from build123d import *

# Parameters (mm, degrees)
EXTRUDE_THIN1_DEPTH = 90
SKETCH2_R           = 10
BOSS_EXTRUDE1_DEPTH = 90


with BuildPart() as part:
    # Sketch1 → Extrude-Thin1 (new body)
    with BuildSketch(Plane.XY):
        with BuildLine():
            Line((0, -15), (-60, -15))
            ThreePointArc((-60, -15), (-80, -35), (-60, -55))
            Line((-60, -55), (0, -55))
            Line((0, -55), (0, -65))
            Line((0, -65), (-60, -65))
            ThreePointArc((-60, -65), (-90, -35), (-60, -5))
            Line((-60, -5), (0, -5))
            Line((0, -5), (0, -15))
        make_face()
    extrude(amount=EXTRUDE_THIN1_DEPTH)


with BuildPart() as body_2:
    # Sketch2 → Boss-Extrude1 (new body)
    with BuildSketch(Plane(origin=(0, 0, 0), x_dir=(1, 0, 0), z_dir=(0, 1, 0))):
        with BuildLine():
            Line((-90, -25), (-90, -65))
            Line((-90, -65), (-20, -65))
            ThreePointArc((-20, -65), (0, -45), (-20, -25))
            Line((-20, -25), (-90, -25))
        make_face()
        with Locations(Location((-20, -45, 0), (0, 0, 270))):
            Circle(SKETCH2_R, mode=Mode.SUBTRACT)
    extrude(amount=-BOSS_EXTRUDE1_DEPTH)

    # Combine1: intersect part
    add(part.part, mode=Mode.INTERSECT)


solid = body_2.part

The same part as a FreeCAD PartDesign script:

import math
import FreeCAD as App
import Part
import Sketcher
Q = App.Units.Quantity

doc = App.newDocument("Part")
params = doc.addObject("Spreadsheet::Sheet", "Params")
for row, (alias, value) in enumerate([
    ("sketch1_radius", "30 mm"),
    ("sketch1_radius2", "20 mm"),
    ("sketch1_width", "60 mm"),
    ("pad1_length", "90 mm"),
    ("sketch2_diameter", "20 mm"),
    ("sketch2_radius", "20 mm"),
    ("sketch2_width", "70 mm"),
    ("pad2_length", "90 mm"),
], start=1):
    params.set(f"A{row}", alias)
    params.set(f"B{row}", "=" + value)
    params.setAlias(f"B{row}", alias)

body = doc.addObject("PartDesign::Body", "Body")

sketch1 = doc.addObject("Sketcher::SketchObject", "Sketch")
body.addObject(sketch1)
sketch1.AttachmentSupport = (doc.XY_Plane, [""])
sketch1.MapMode = "FlatFace"
sketch1.addGeometry([
    Part.LineSegment(App.Vector(-60, -15, 0), App.Vector(0, -15, 0)),
    Part.LineSegment(App.Vector(0, -15, 0), App.Vector(0, -5, 0)),
    Part.LineSegment(App.Vector(0, -5, 0), App.Vector(-60, -5, 0)),
    Part.ArcOfCircle(Part.Circle(App.Vector(-60, -35, 0), App.Vector(0, 0, 1), 30), math.radians(90), math.radians(270)),
    Part.LineSegment(App.Vector(-60, -65, 0), App.Vector(0, -65, 0)),
    Part.LineSegment(App.Vector(0, -65, 0), App.Vector(0, -55, 0)),
    Part.LineSegment(App.Vector(0, -55, 0), App.Vector(-60, -55, 0)),
    Part.ArcOfCircle(Part.Circle(App.Vector(-60, -35, 0), App.Vector(0, 0, 1), 20), math.radians(90), math.radians(270)),
], False)
sketch1.addConstraint([
    Sketcher.Constraint("Coincident", 0, 2, 1, 1),
    Sketcher.Constraint("Coincident", 1, 2, 2, 1),
    Sketcher.Constraint("Tangent", 2, 2, 3, 1),
    Sketcher.Constraint("Tangent", 3, 2, 4, 1),
    Sketcher.Constraint("Coincident", 4, 2, 5, 1),
    Sketcher.Constraint("Coincident", 5, 2, 6, 1),
    Sketcher.Constraint("Tangent", 6, 2, 7, 2),
    Sketcher.Constraint("Tangent", 7, 1, 0, 1),
    Sketcher.Constraint("Horizontal", 0),
    Sketcher.Constraint("Vertical", 1),
    Sketcher.Constraint("Horizontal", 2),
    Sketcher.Constraint("Horizontal", 4),
    Sketcher.Constraint("Vertical", 5),
    Sketcher.Constraint("Horizontal", 6),
    Sketcher.Constraint("Coincident", 7, 3, 3, 3),
    Sketcher.Constraint("PointOnObject", 0, 2, -2),
    Sketcher.Constraint("PointOnObject", 4, 2, -2),
    Sketcher.Constraint("Radius", 3, Q("30 mm")),
    Sketcher.Constraint("Radius", 7, Q("20 mm")),
    Sketcher.Constraint("DistanceX", 0, 1, 0, 2, Q("60 mm")),
    Sketcher.Constraint("DistanceY", 3, 3, -1, 1, Q("35 mm")),
])
sketch1.setExpression("Constraints[17]", "Params.sketch1_radius")
sketch1.setExpression("Constraints[18]", "Params.sketch1_radius2")
sketch1.setExpression("Constraints[19]", "Params.sketch1_width")
pad1 = doc.addObject("PartDesign::Pad", "Pad")
body.addObject(pad1)
pad1.Profile = sketch1
pad1.setExpression("Length", "Params.pad1_length")
body2 = doc.addObject("PartDesign::Body", "Body001")

sketch2 = doc.addObject("Sketcher::SketchObject", "Sketch001")
body2.addObject(sketch2)
sketch2.AttachmentSupport = (doc.getObject("XZ_Plane001"), [""])
sketch2.MapMode = "FlatFace"
sketch2.addGeometry([
    Part.LineSegment(App.Vector(-90, 25, 0), App.Vector(-90, 65, 0)),
    Part.LineSegment(App.Vector(-90, 65, 0), App.Vector(-20, 65, 0)),
    Part.ArcOfCircle(Part.Circle(App.Vector(-20, 45, 0), App.Vector(0, 0, 1), 20), math.radians(-90), math.radians(90)),
    Part.LineSegment(App.Vector(-20, 25, 0), App.Vector(-90, 25, 0)),
    Part.Circle(App.Vector(-20, 45, 0), App.Vector(0, 0, 1), 10),
], False)
sketch2.addConstraint([
    Sketcher.Constraint("Coincident", 0, 2, 1, 1),
    Sketcher.Constraint("Tangent", 1, 2, 2, 2),
    Sketcher.Constraint("Tangent", 2, 1, 3, 1),
    Sketcher.Constraint("Coincident", 3, 2, 0, 1),
    Sketcher.Constraint("Vertical", 0),
    Sketcher.Constraint("Horizontal", 1),
    Sketcher.Constraint("Horizontal", 3),
    Sketcher.Constraint("Coincident", 4, 3, 2, 3),
    Sketcher.Constraint("Diameter", 4, Q("20 mm")),
    Sketcher.Constraint("Radius", 2, Q("20 mm")),
    Sketcher.Constraint("DistanceX", 1, 1, 1, 2, Q("70 mm")),
    Sketcher.Constraint("DistanceX", 2, 3, -1, 1, Q("20 mm")),
    Sketcher.Constraint("DistanceY", -1, 1, 2, 3, Q("45 mm")),
])
sketch2.setExpression("Constraints[8]", "Params.sketch2_diameter")
sketch2.setExpression("Constraints[9]", "Params.sketch2_radius")
sketch2.setExpression("Constraints[10]", "Params.sketch2_width")
pad2 = doc.addObject("PartDesign::Pad", "Pad001")
body2.addObject(pad2)
pad2.Profile = sketch2
pad2.setExpression("Length", "Params.pad2_length")
doc.recompute()

boolean = doc.addObject("PartDesign::Boolean", "Boolean")
body2.addObject(boolean)
boolean.Type = "Common"
boolean.addObjects([body])

doc.recompute()
